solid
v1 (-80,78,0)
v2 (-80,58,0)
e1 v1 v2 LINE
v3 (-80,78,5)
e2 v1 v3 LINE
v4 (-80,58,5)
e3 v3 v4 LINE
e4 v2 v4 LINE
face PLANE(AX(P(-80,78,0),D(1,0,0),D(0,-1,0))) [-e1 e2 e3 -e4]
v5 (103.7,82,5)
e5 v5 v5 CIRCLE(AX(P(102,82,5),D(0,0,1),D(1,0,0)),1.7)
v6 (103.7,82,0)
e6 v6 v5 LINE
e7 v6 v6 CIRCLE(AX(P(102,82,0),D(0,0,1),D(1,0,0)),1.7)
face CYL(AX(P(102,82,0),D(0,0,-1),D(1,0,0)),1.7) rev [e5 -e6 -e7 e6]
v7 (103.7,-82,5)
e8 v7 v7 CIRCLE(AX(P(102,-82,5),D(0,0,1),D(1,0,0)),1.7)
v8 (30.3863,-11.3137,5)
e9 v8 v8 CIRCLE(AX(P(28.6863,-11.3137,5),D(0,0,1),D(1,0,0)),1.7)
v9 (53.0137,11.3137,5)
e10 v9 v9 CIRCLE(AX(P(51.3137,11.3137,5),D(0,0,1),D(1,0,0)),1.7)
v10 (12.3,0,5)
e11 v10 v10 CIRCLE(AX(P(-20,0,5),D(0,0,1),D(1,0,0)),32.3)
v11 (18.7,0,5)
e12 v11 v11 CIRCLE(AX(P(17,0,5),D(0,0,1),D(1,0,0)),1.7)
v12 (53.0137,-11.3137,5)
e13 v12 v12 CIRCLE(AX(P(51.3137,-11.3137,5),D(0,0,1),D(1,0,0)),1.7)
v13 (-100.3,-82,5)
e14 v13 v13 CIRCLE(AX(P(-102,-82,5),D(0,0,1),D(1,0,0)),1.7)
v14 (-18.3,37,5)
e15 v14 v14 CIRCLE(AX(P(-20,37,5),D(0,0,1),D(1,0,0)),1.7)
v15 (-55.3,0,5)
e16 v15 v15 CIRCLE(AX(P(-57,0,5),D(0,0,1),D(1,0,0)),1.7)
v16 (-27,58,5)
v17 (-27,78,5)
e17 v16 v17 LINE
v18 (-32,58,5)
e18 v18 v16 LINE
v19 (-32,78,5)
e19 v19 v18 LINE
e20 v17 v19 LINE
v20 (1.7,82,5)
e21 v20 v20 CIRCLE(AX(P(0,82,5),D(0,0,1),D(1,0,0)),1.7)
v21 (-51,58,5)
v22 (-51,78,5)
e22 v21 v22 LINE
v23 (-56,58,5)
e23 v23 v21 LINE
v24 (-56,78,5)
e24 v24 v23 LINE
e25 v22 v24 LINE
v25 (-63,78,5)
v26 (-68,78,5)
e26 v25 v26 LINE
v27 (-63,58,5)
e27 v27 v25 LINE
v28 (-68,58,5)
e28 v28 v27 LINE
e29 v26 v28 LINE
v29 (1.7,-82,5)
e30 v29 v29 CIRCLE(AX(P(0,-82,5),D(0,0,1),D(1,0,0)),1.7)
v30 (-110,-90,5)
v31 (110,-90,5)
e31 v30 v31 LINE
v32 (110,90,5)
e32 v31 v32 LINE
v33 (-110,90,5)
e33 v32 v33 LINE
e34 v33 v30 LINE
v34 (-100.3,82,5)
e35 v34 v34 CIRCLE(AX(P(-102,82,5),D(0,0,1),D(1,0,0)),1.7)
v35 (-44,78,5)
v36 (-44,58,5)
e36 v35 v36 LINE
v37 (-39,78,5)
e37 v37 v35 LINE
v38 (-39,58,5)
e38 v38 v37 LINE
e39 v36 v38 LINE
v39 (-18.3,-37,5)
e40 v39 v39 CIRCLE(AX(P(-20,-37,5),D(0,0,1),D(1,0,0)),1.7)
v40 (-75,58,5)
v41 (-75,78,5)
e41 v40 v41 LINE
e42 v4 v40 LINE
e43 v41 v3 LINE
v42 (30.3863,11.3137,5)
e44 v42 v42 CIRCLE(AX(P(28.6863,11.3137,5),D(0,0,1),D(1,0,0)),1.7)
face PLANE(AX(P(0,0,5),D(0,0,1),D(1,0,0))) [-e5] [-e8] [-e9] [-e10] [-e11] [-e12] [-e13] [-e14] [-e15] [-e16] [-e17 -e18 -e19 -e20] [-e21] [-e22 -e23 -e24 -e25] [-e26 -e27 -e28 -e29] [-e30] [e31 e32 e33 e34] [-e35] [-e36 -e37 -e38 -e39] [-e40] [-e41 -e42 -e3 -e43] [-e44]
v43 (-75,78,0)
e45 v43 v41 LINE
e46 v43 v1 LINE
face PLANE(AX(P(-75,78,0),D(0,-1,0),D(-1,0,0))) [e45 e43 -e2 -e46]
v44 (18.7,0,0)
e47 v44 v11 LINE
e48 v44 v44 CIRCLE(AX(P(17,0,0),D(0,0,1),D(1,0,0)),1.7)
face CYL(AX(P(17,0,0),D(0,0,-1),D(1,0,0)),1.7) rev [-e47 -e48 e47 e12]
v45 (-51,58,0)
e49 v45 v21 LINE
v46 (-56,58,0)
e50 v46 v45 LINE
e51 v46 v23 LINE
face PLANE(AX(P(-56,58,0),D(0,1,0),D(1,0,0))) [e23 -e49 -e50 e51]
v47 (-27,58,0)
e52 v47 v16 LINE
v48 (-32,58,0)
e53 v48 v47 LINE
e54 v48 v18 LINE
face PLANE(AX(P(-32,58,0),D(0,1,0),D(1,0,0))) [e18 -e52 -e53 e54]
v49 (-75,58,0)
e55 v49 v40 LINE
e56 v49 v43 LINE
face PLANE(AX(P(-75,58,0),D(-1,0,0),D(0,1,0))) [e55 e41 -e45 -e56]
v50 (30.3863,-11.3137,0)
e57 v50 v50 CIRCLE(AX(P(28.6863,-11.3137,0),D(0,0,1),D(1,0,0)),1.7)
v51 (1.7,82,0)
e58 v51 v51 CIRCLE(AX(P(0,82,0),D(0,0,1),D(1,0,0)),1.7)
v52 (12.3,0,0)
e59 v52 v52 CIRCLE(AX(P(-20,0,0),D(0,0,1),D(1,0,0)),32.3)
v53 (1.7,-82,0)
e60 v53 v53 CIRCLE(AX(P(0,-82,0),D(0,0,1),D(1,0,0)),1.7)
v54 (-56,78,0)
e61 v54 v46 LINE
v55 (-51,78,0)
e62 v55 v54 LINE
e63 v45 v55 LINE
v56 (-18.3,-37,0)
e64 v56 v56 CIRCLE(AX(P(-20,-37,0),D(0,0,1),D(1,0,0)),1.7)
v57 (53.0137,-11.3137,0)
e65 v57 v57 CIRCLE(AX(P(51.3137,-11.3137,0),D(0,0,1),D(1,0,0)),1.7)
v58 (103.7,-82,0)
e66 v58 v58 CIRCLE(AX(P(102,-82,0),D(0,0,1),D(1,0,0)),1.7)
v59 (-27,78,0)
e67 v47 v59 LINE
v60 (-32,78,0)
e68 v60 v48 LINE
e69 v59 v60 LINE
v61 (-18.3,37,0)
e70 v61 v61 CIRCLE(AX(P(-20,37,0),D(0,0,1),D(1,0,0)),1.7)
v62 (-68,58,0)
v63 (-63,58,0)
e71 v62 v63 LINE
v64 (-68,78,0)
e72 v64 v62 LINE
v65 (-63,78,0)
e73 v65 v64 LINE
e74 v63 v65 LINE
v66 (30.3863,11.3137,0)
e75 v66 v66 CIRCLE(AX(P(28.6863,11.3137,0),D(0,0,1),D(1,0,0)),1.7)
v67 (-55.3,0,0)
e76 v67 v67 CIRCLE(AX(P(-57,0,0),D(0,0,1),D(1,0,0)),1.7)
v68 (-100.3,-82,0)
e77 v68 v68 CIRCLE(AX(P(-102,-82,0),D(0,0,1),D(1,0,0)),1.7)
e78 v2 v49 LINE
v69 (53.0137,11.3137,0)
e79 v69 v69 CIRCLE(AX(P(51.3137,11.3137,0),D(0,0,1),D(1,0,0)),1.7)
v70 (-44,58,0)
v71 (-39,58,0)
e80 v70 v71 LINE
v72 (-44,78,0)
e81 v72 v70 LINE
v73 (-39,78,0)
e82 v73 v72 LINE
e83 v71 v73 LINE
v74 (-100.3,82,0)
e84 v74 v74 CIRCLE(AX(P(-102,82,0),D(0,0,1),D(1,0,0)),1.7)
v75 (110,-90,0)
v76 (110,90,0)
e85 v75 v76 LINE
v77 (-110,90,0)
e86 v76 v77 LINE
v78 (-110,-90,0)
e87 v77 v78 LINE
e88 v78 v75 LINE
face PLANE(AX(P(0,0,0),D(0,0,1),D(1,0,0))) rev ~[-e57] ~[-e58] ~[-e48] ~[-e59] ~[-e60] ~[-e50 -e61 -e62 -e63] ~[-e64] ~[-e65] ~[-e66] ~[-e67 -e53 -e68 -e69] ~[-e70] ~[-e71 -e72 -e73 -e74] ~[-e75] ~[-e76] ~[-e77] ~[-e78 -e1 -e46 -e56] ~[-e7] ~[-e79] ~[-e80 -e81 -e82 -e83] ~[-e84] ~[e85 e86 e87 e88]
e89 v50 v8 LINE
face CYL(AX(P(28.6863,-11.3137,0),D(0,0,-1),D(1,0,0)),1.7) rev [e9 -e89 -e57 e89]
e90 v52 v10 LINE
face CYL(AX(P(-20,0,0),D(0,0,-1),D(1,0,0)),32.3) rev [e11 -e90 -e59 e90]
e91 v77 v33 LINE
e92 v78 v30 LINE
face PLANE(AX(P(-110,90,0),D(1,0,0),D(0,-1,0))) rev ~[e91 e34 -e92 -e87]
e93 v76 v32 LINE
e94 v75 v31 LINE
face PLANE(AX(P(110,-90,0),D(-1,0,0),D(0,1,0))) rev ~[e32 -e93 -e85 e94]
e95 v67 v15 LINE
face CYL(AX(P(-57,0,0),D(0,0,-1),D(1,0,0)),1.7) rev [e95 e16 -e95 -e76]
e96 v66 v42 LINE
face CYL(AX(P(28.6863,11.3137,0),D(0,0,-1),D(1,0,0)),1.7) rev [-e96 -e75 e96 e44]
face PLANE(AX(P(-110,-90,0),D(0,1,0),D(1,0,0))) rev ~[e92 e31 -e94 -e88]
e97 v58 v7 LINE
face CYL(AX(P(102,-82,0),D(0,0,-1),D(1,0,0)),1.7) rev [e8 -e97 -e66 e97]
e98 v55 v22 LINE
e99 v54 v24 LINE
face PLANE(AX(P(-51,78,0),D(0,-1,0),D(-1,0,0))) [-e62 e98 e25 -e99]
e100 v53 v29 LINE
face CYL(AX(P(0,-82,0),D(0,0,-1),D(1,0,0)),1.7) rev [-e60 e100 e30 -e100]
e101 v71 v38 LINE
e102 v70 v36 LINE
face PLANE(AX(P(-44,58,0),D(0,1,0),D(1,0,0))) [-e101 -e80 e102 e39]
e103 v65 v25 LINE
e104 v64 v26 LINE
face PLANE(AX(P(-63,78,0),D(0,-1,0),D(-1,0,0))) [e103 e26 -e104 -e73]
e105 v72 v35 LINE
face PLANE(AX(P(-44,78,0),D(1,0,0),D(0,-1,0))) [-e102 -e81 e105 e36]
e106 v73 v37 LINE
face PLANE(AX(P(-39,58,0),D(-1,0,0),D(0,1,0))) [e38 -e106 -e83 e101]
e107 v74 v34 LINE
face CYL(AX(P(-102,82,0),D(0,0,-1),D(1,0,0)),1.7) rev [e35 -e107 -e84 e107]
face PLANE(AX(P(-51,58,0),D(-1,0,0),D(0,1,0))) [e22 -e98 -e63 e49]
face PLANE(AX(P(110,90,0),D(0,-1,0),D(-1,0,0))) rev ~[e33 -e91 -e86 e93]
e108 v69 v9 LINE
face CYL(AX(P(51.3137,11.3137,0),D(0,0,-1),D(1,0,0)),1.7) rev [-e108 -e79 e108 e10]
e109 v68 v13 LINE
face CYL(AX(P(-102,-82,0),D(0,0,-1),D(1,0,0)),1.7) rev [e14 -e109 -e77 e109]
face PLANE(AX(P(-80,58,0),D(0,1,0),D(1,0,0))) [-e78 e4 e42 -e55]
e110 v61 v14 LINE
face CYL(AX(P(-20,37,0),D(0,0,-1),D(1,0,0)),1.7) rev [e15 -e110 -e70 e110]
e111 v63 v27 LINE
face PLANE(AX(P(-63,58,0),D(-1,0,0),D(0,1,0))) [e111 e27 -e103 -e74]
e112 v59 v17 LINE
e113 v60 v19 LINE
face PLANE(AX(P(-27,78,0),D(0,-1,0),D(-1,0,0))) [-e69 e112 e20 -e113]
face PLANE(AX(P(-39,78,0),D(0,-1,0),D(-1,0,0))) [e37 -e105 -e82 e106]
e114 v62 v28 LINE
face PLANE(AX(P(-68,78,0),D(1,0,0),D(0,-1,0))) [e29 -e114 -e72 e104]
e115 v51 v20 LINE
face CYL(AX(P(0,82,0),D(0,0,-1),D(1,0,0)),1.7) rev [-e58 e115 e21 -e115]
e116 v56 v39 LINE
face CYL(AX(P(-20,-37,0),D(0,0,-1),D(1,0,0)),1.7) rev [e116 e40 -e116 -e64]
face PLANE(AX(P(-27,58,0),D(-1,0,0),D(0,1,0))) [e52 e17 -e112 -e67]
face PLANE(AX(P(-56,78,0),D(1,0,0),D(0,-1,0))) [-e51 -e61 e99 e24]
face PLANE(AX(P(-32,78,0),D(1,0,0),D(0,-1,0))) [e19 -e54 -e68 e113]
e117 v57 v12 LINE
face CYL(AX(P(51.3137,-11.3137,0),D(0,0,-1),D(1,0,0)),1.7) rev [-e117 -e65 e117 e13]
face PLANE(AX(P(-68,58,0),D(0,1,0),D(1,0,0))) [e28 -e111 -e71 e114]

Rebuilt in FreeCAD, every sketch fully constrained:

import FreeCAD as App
import Part
import Sketcher


def add_polygon(sketch, points):
    """Adds a closed chain of lines whose ends are joined by coincident constraints."""
    first, n = sketch.GeometryCount, len(points)
    for a, b in zip(points, points[1:] + points[:1]):
        sketch.addGeometry(Part.LineSegment(App.Vector(*a, 0), App.Vector(*b, 0)), False)
    for i in range(n):
        sketch.addConstraint(Sketcher.Constraint("Coincident", first + i, 2, first + (i + 1) % n, 1))

doc = App.newDocument("Part")
body = doc.addObject("PartDesign::Body", "Body")

# Sketch on XY plane
sketch1 = body.newObject("Sketcher::SketchObject", "Sketch")
sketch1.AttachmentSupport = (doc.getObject("XY_Plane"), [""])
sketch1.MapMode = "FlatFace"
add_polygon(sketch1, [(-110, 90), (-110, -90), (110, -90), (110, 90)])  # lines 0-3
sketch1.addGeometry(Part.Circle(App.Vector(-102, -82, 0), App.Vector(0, 0, 1), 1.7), False)  # 4
sketch1.addGeometry(Part.Circle(App.Vector(-20, -37, 0), App.Vector(0, 0, 1), 1.7), False)  # 5
sketch1.addGeometry(Part.Circle(App.Vector(0, -82, 0), App.Vector(0, 0, 1), 1.7), False)  # 6
sketch1.addGeometry(Part.Circle(App.Vector(102, -82, 0), App.Vector(0, 0, 1), 1.7), False)  # 7
sketch1.addGeometry(Part.Circle(App.Vector(28.7, -11.3, 0), App.Vector(0, 0, 1), 1.7), False)  # 8
sketch1.addGeometry(Part.Circle(App.Vector(51.3, -11.3, 0), App.Vector(0, 0, 1), 1.7), False)  # 9
sketch1.addGeometry(Part.Circle(App.Vector(-57, 0, 0), App.Vector(0, 0, 1), 1.7), False)  # 10
sketch1.addGeometry(Part.Circle(App.Vector(-20, 0, 0), App.Vector(0, 0, 1), 32.3), False)  # 11
sketch1.addGeometry(Part.Circle(App.Vector(-20, 37, 0), App.Vector(0, 0, 1), 1.7), False)  # 12
sketch1.addGeometry(Part.Circle(App.Vector(-102, 82, 0), App.Vector(0, 0, 1), 1.7), False)  # 13
add_polygon(sketch1, [(-75, 58), (-80, 58), (-80, 78), (-75, 78)])  # lines 14-17
add_polygon(sketch1, [(-63, 58), (-68, 58), (-68, 78), (-63, 78)])  # lines 18-21
add_polygon(sketch1, [(-51, 58), (-56, 58), (-56, 78), (-51, 78)])  # lines 22-25
add_polygon(sketch1, [(-39, 58), (-44, 58), (-44, 78), (-39, 78)])  # lines 26-29
add_polygon(sketch1, [(-27, 58), (-32, 58), (-32, 78), (-27, 78)])  # lines 30-33
sketch1.addGeometry(Part.Circle(App.Vector(17, 0, 0), App.Vector(0, 0, 1), 1.7), False)  # 34
sketch1.addGeometry(Part.Circle(App.Vector(28.7, 11.3, 0), App.Vector(0, 0, 1), 1.7), False)  # 35
sketch1.addGeometry(Part.Circle(App.Vector(51.3, 11.3, 0), App.Vector(0, 0, 1), 1.7), False)  # 36
sketch1.addGeometry(Part.Circle(App.Vector(0, 82, 0), App.Vector(0, 0, 1), 1.7), False)  # 37
sketch1.addGeometry(Part.Circle(App.Vector(102, 82, 0), App.Vector(0, 0, 1), 1.7), False)  # 38
sketch1.addConstraint([
    Sketcher.Constraint("Vertical", 0),
    Sketcher.Constraint("Horizontal", 1),
    Sketcher.Constraint("Vertical", 2),
    Sketcher.Constraint("Horizontal", 3),
    Sketcher.Constraint("Horizontal", 14),
    Sketcher.Constraint("Vertical", 15),
    Sketcher.Constraint("Horizontal", 16),
    Sketcher.Constraint("Vertical", 17),
    Sketcher.Constraint("Horizontal", 18),
    Sketcher.Constraint("Vertical", 19),
    Sketcher.Constraint("Horizontal", 20),
    Sketcher.Constraint("Vertical", 21),
    Sketcher.Constraint("Horizontal", 22),
    Sketcher.Constraint("Vertical", 23),
    Sketcher.Constraint("Horizontal", 24),
    Sketcher.Constraint("Vertical", 25),
    Sketcher.Constraint("Horizontal", 26),
    Sketcher.Constraint("Vertical", 27),
    Sketcher.Constraint("Horizontal", 28),
    Sketcher.Constraint("Vertical", 29),
    Sketcher.Constraint("Horizontal", 30),
    Sketcher.Constraint("Vertical", 31),
    Sketcher.Constraint("Horizontal", 32),
    Sketcher.Constraint("Vertical", 33),
    Sketcher.Constraint("Equal", 4, 5),
    Sketcher.Constraint("Equal", 5, 6),
    Sketcher.Constraint("Equal", 6, 7),
    Sketcher.Constraint("Equal", 7, 8),
    Sketcher.Constraint("Equal", 8, 9),
    Sketcher.Constraint("Equal", 9, 10),
    Sketcher.Constraint("Equal", 10, 12),
    Sketcher.Constraint("Equal", 12, 13),
    Sketcher.Constraint("Equal", 13, 34),
    Sketcher.Constraint("Equal", 34, 35),
    Sketcher.Constraint("Equal", 35, 36),
    Sketcher.Constraint("Equal", 36, 37),
    Sketcher.Constraint("Equal", 37, 38),
    Sketcher.Constraint("Symmetric", 7, 3, 13, 3, -1, 1),
    Sketcher.Constraint("Symmetric", 6, 3, 37, 3, -1, 1),
    Sketcher.Constraint("Symmetric", 4, 3, 38, 3, -1, 1),
    Sketcher.Constraint("Symmetric", 0, 2, 2, 2, -1, 1),
    Sketcher.Constraint("Symmetric", 4, 3, 7, 3, -2),
    Sketcher.Constraint("Symmetric", 5, 3, 12, 3, -1),
    Sketcher.Constraint("Symmetric", 8, 3, 35, 3, -1),
    Sketcher.Constraint("Symmetric", 9, 3, 36, 3, -1),
    Sketcher.Constraint("PointOnObject", 6, 3, -2),
    Sketcher.Constraint("PointOnObject", 10, 3, -1),
    Sketcher.Constraint("PointOnObject", 11, 3, -1),
    Sketcher.Constraint("PointOnObject", 34, 3, -1),
    Sketcher.Constraint("Horizontal", 4, 3, 6, 3),
    Sketcher.Constraint("Horizontal", 8, 3, 9, 3),
    Sketcher.Constraint("Horizontal", 17, 2, 18, 2),
    Sketcher.Constraint("Horizontal", 16, 2, 19, 2),
    Sketcher.Constraint("Horizontal", 21, 2, 22, 2),
    Sketcher.Constraint("Horizontal", 20, 2, 23, 2),
    Sketcher.Constraint("Horizontal", 25, 2, 26, 2),
    Sketcher.Constraint("Horizontal", 24, 2, 27, 2),
    Sketcher.Constraint("Horizontal", 29, 2, 30, 2),
    Sketcher.Constraint("Horizontal", 28, 2, 31, 2),
    Sketcher.Constraint("Vertical", 5, 3, 11, 3),
    Sketcher.Constraint("Equal", 16, 18),
    Sketcher.Constraint("Equal", 20, 22),
    Sketcher.Constraint("Equal", 24, 26),
    Sketcher.Constraint("Equal", 28, 30),
    Sketcher.Constraint("Diameter", 4, 3.4),
    Sketcher.Constraint("Diameter", 11, 64.6),
    Sketcher.Constraint("DistanceX", 1, 1, 1, 2, 220.0),
    Sketcher.Constraint("DistanceX", 14, 2, 14, 1, 5.0),
    Sketcher.Constraint("DistanceY", 0, 2, 0, 1, 180.0),
    Sketcher.Constraint("DistanceY", 15, 1, 15, 2, 20.0),
    Sketcher.Constraint("DistanceX", 4, 3, -1, 1, 102.0),
    Sketcher.Constraint("DistanceY", 4, 3, -1, 1, 82.0),
    Sketcher.Constraint("DistanceX", 5, 3, -1, 1, 20.0),
    Sketcher.Constraint("DistanceY", 5, 3, -1, 1, 37.0),
    Sketcher.Constraint("DistanceX", 10, 3, -1, 1, 57.0),
    Sketcher.Constraint("DistanceX", -1, 1, 34, 3, 17.0),
    Sketcher.Constraint("DistanceX", 14, 2, -1, 1, 80.0),
    Sketcher.Constraint("DistanceY", -1, 1, 14, 2, 58.0),
    Sketcher.Constraint("DistanceX", 18, 2, -1, 1, 68.0),
    Sketcher.Constraint("DistanceX", 22, 2, -1, 1, 56.0),
    Sketcher.Constraint("DistanceX", 26, 2, -1, 1, 44.0),
    Sketcher.Constraint("DistanceX", 30, 2, -1, 1, 32.0),
    Sketcher.Constraint("DistanceX", -1, 1, 8, 3, 28.6863),
    Sketcher.Constraint("DistanceY", 8, 3, -1, 1, 11.3137),
    Sketcher.Constraint("DistanceX", -1, 1, 9, 3, 51.3137),
])
pad1 = body.newObject("PartDesign::Pad", "Pad")
pad1.Profile = sketch1
pad1.Length = 5

doc.recompute()
